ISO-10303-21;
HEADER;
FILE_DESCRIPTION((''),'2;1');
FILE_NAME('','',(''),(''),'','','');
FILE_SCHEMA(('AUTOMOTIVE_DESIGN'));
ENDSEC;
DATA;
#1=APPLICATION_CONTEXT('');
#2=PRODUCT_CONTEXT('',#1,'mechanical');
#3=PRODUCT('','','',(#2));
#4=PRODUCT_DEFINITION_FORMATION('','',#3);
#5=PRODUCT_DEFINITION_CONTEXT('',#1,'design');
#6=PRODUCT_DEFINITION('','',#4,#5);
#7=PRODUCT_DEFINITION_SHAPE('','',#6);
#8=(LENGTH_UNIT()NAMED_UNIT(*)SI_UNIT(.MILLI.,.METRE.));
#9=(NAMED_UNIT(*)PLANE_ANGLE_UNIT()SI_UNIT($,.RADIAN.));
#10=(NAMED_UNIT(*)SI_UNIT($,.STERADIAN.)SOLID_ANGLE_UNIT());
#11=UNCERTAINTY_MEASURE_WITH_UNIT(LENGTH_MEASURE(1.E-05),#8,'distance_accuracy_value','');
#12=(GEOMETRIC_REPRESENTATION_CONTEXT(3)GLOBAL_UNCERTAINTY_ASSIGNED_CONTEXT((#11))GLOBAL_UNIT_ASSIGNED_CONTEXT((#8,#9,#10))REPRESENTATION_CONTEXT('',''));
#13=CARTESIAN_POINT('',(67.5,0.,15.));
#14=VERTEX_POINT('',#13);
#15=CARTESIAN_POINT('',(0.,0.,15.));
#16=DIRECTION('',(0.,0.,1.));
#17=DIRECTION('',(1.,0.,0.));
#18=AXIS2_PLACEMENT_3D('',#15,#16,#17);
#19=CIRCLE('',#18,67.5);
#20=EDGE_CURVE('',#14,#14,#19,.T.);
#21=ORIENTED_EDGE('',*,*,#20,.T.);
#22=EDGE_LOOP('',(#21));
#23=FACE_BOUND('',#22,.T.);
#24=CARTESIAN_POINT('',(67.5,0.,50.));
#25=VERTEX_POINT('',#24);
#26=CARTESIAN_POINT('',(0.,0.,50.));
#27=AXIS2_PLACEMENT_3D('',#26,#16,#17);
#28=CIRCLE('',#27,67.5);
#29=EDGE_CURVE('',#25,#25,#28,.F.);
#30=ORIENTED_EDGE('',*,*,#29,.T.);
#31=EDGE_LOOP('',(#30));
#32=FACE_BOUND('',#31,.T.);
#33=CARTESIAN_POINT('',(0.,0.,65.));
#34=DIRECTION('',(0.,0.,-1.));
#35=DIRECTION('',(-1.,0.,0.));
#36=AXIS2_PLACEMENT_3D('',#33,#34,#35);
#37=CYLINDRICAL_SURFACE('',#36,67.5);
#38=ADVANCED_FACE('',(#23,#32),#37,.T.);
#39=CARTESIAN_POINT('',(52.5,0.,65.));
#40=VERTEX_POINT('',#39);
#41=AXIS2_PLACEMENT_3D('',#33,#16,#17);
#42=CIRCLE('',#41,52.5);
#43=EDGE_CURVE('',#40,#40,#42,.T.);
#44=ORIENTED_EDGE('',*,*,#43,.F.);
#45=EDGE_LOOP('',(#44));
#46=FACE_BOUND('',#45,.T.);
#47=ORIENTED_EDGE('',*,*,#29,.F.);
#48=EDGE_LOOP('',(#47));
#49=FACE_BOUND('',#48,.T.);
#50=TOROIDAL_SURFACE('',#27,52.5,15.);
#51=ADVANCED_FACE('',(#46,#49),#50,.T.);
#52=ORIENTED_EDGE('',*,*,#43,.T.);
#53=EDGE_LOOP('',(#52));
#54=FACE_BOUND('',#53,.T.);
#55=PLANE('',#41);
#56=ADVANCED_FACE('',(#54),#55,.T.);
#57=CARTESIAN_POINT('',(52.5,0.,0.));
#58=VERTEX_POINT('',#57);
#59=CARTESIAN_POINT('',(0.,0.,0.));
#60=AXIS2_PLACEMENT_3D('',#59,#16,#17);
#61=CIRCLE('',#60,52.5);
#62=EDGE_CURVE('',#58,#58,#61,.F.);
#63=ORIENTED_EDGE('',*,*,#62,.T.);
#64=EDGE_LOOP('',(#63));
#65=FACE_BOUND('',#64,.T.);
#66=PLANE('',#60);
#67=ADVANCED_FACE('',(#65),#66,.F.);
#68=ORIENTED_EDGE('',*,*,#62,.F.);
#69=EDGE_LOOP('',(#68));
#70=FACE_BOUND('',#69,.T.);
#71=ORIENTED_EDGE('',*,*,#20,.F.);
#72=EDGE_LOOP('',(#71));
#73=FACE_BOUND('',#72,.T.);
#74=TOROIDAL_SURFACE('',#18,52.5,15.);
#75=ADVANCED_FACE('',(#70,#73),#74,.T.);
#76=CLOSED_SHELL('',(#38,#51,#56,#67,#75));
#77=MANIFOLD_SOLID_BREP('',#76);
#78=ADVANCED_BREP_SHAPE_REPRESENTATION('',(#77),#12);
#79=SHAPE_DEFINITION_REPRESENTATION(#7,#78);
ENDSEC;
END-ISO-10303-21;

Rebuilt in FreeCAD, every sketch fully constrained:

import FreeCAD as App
import Part
import Sketcher

V = App.Vector
Q = App.Units.Quantity


def edges_at(feature, points):
    """Names of the edges that pass closest to the given points."""
    edges = feature.Shape.Edges
    near = lambda p: min(range(len(edges)), key=lambda i: edges[i].distToShape(Part.Vertex(*p))[0])
    return sorted({f"Edge{near(p) + 1}" for p in points})

doc = App.newDocument("Part")
body = doc.addObject("PartDesign::Body", "Body")

# Sketch on XY plane
sketch1 = body.newObject("Sketcher::SketchObject", "Sketch")
sketch1.AttachmentSupport = (doc.getObject("XY_Plane"), [""])
sketch1.MapMode = "FlatFace"
sketch1.addGeometry(Part.Circle(V(0, 0, 0), V(0, 0, 1), 68), False)
sketch1.addConstraint([
    Sketcher.Constraint("Coincident", 0, 3, -1, 1),
    Sketcher.Constraint("Diameter", 0, Q("135 mm")),
])
pad1 = body.newObject("PartDesign::Pad", "Pad")
pad1.Profile = sketch1
pad1.Length = 65
doc.recompute()

fillet = body.newObject("PartDesign::Fillet", "Fillet")
fillet.Base = (pad1, edges_at(pad1, [(-67.5, 0, 0), (-67.5, 0, 65)]))
fillet.Radius = 15

doc.recompute()
